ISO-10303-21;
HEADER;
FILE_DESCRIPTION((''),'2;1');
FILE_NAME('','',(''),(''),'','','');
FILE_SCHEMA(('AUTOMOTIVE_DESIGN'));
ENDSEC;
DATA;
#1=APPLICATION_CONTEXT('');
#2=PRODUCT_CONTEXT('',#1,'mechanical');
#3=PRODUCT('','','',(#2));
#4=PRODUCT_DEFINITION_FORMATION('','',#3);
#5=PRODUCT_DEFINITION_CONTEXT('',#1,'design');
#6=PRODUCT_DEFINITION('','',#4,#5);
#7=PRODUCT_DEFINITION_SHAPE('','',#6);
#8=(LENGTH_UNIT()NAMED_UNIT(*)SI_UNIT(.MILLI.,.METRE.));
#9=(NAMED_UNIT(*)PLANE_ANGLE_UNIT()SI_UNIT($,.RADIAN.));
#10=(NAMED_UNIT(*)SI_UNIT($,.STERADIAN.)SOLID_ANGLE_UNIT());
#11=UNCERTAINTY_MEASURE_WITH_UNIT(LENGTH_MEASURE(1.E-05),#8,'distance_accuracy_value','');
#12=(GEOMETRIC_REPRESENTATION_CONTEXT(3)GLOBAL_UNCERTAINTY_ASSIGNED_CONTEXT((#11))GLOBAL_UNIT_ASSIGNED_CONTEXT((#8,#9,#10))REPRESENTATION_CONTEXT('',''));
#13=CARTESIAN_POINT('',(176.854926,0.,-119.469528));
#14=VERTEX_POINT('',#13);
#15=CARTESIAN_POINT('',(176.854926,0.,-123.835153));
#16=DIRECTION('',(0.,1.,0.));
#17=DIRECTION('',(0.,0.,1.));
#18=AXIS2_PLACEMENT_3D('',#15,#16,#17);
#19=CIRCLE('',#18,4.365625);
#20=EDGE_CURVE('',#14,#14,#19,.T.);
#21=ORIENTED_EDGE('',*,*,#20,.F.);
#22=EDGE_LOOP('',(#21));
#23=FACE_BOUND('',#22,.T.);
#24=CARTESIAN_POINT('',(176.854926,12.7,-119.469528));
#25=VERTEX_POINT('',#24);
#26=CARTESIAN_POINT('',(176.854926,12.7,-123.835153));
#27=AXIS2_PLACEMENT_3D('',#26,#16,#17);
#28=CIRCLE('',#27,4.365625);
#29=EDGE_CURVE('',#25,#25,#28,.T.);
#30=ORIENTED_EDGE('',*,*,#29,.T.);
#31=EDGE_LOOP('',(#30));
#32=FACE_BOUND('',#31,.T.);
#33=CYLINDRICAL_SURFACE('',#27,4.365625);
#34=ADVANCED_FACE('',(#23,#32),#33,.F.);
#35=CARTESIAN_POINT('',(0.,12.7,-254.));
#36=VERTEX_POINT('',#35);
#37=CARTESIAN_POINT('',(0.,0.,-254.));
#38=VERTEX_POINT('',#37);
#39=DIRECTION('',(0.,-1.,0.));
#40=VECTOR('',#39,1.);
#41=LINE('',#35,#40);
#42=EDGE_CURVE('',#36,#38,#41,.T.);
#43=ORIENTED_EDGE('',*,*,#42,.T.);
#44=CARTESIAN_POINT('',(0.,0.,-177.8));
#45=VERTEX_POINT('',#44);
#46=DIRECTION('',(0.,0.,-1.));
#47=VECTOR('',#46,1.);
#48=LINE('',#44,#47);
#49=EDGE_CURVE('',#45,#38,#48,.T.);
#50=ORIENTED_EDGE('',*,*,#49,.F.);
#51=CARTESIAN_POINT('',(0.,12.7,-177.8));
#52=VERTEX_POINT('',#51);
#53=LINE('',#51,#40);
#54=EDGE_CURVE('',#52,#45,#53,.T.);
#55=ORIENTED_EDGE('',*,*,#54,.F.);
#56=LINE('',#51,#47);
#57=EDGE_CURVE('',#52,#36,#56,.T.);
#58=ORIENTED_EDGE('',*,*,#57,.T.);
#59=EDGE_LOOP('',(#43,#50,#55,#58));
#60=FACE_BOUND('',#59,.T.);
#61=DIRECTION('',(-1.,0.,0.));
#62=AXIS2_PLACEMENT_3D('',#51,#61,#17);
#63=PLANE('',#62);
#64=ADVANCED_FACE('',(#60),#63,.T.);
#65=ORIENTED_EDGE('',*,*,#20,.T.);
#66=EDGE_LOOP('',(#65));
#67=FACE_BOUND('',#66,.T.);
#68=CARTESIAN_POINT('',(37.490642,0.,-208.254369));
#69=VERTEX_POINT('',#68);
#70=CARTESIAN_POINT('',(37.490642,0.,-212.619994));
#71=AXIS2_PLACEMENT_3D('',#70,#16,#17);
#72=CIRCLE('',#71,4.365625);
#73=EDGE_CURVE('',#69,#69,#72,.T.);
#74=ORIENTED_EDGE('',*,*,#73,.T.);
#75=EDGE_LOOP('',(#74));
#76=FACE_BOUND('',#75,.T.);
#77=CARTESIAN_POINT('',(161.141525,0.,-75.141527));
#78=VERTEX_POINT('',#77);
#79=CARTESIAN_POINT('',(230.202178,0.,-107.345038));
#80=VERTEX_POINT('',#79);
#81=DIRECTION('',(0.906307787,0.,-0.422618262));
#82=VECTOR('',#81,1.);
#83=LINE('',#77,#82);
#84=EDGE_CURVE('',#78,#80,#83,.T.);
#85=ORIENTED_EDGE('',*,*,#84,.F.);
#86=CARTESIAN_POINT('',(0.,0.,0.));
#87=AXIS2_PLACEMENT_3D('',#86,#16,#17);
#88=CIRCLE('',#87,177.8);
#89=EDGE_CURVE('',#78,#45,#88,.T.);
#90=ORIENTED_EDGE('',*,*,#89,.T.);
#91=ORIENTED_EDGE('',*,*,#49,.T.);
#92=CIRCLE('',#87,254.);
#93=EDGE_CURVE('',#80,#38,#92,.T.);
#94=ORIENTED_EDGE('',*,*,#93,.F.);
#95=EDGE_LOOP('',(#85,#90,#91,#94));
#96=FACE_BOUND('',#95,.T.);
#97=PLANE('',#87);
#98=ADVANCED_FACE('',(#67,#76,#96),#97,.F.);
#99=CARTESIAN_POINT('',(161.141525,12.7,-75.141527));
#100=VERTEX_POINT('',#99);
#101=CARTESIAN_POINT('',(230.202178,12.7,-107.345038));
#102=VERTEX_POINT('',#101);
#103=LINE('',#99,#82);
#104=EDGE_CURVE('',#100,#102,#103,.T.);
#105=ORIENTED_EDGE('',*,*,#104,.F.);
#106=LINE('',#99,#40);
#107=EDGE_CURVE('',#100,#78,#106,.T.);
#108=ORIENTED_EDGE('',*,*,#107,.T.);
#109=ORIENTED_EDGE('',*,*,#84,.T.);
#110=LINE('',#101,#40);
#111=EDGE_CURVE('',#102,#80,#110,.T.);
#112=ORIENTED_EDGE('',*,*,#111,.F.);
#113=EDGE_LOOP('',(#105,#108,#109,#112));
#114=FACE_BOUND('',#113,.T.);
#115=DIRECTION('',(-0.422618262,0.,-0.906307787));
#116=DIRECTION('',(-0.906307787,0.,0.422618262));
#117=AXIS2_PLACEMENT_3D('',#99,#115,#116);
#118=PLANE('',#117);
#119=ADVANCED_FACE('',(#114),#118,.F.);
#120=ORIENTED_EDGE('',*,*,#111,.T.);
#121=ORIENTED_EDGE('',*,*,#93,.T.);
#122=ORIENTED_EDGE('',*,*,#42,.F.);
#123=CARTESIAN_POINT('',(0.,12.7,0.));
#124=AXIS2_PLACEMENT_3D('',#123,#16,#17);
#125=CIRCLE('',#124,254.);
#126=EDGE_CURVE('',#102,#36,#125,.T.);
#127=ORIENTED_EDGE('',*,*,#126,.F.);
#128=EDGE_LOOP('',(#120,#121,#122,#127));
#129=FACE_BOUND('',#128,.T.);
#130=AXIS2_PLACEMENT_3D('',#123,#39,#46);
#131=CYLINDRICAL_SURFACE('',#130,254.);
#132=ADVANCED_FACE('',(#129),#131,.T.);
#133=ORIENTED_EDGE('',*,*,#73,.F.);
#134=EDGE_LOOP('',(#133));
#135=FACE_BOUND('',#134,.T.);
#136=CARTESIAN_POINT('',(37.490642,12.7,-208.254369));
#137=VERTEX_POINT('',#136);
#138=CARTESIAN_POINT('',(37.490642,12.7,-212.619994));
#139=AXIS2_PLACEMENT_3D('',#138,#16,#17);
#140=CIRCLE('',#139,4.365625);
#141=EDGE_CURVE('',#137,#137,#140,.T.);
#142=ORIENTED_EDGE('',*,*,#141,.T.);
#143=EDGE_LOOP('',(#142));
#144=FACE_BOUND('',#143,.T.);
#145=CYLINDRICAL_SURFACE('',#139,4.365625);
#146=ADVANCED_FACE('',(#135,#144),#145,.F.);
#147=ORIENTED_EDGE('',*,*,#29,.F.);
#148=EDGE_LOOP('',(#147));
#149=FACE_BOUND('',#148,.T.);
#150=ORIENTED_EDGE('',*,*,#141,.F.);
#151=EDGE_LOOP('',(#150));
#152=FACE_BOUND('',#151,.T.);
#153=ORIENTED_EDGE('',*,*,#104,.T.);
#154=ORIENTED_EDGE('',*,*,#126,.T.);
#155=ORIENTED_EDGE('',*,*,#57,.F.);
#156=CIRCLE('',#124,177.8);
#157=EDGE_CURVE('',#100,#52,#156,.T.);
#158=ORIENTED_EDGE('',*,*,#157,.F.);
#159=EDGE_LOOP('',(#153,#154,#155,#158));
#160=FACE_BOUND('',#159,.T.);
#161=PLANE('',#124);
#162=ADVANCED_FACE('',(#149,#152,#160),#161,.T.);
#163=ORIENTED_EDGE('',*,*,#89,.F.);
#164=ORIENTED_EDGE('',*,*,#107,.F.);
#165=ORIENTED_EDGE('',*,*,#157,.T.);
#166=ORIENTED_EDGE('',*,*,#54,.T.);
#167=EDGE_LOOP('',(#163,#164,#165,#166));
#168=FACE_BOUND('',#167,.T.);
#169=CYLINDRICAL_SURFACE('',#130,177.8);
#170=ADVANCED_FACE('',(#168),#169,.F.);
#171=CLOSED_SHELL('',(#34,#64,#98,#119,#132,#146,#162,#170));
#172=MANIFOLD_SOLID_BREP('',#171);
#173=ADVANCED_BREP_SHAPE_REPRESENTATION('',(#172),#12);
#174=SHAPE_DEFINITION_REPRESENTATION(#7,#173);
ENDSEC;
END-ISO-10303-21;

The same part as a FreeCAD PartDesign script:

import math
import FreeCAD as App
import Part
import Sketcher

V = App.Vector
Q = App.Units.Quantity

doc = App.newDocument("Part")
body = doc.addObject("PartDesign::Body", "Body")

# Sketch on XZ plane
sketch1 = body.newObject("Sketcher::SketchObject", "Sketch")
sketch1.AttachmentSupport = (doc.getObject("XZ_Plane"), [""])
sketch1.MapMode = "FlatFace"
sketch1.addGeometry([
    Part.LineSegment(V(0, -254, 0), V(0, -178, 0)),
    Part.ArcOfCircle(Part.Circle(V(0, 0, 0), V(0, 0, 1), 178), math.radians(-90), math.radians(-25)),
    Part.LineSegment(V(161, -75, 0), V(230, -107, 0)),
    Part.ArcOfCircle(Part.Circle(V(0, 0, 0), V(0, 0, 1), 254), math.radians(-90), math.radians(-25)),
], False)
sketch1.addConstraint([
    Sketcher.Constraint("Coincident", 0, 2, 1, 1),
    Sketcher.Constraint("Coincident", 1, 2, 2, 1),
    Sketcher.Constraint("Coincident", 2, 2, 3, 2),
    Sketcher.Constraint("Coincident", 3, 1, 0, 1),
    Sketcher.Constraint("Vertical", 0),
    Sketcher.Constraint("Coincident", 1, 3, -1, 1),
    Sketcher.Constraint("Coincident", 3, 3, -1, 1),
    Sketcher.Constraint("PointOnObject", 0, 2, -2),
    Sketcher.Constraint("Radius", 1, Q("7 in")),
    Sketcher.Constraint("Radius", 3, Q("10 in")),
    Sketcher.Constraint("Angle", 2, Q("-25 deg")),
    Sketcher.Constraint("DistanceY", 2, 2, -1, 1, 107.345038),
])
pad1 = body.newObject("PartDesign::Pad", "Pad")
pad1.Profile = sketch1
pad1.Length = Q("0.5 in")
pad1.Reversed = True

# Sketch on XZ plane
sketch2 = body.newObject("Sketcher::SketchObject", "Sketch001")
sketch2.AttachmentSupport = (doc.getObject("XZ_Plane"), [""])
sketch2.MapMode = "FlatFace"
sketch2.AttachmentOffset = App.Placement(V(0, 0, -0.5 * 25.4), App.Rotation())
sketch2.addGeometry([
    Part.Circle(V(37.5, -212.6, 0), V(0, 0, 1), 4.4),
    Part.Circle(V(176.9, -123.8, 0), V(0, 0, 1), 4.4),
], False)
sketch2.addConstraint([
    Sketcher.Constraint("Equal", 0, 1),
    Sketcher.Constraint("Diameter", 0, Q("0.34375 in")),
    Sketcher.Constraint("DistanceX", -1, 1, 0, 3, 37.490642),
    Sketcher.Constraint("DistanceY", 0, 3, 1, 3, 88.784841),
    Sketcher.Constraint("DistanceY", 0, 3, -1, 1, 212.619994),
    Sketcher.Constraint("DistanceX", -1, 1, 1, 3, 176.854926),
])
doc.recompute()
hole = body.newObject("PartDesign::Hole", "Hole")
hole.Profile = sketch2
hole.ThreadType = "None"
hole.Diameter = Q("0.34375 in")
hole.DepthType = "ThroughAll"
hole.Reversed = True

doc.recompute()
